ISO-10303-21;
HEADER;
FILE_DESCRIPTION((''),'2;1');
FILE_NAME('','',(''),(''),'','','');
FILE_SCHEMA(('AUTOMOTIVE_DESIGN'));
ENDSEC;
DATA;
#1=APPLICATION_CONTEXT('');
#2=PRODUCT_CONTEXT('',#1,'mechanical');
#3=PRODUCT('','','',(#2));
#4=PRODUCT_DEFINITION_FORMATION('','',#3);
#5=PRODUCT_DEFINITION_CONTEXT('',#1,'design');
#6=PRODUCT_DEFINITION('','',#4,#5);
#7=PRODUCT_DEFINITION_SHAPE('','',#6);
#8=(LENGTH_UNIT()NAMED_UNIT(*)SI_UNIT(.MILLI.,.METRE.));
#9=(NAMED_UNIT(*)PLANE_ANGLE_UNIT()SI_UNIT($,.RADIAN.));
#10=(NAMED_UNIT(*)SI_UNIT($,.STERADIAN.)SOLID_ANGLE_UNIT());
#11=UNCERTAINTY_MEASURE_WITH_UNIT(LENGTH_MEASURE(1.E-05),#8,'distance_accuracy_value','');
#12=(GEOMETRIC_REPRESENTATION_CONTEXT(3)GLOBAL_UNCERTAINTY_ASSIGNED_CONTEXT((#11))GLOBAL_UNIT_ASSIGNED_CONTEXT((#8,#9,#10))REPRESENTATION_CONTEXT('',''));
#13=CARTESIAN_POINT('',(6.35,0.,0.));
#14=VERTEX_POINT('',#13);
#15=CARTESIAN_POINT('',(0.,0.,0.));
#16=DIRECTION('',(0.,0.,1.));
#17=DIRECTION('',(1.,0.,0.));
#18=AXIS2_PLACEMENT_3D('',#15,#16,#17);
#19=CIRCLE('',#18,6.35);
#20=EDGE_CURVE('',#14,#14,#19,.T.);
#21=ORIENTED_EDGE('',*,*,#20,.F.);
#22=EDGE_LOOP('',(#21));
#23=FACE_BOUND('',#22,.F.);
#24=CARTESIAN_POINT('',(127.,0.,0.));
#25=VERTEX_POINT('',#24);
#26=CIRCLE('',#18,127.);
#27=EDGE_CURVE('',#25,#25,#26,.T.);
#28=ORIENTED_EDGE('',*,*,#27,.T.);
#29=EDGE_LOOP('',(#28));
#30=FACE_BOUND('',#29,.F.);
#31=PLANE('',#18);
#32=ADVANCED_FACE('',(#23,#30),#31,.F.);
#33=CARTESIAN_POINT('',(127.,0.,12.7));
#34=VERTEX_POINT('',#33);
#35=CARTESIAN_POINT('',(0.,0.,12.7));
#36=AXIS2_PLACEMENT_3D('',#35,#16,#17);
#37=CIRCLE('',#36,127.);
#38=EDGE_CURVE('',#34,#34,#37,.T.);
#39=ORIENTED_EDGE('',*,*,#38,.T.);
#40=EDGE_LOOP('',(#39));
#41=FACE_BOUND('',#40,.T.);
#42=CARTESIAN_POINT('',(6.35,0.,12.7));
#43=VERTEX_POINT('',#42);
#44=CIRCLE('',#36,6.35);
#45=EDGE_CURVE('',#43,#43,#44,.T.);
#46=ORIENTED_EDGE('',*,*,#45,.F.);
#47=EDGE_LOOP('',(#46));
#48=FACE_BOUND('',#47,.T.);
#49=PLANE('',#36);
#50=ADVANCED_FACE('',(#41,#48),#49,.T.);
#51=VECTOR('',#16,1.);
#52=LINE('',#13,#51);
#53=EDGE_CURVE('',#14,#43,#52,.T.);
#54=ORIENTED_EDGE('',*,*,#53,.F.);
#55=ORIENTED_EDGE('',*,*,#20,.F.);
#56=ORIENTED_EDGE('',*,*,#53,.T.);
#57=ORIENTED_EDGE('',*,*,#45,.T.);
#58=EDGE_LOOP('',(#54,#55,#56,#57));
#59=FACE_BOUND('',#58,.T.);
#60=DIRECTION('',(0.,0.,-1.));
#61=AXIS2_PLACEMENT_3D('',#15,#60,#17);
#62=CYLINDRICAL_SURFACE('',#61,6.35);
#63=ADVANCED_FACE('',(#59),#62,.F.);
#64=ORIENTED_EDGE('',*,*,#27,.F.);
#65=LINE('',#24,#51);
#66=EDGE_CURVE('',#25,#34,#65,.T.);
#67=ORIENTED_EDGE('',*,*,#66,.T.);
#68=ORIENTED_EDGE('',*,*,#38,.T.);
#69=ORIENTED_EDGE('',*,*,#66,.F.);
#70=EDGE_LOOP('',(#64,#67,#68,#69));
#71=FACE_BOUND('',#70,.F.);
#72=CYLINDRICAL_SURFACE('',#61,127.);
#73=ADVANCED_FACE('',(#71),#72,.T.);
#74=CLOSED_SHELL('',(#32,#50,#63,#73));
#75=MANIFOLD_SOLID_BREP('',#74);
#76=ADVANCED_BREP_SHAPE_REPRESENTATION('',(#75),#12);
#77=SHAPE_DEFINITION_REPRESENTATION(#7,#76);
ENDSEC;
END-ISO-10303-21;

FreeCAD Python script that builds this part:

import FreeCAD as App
import Part
import Sketcher
Q = App.Units.Quantity

doc = App.newDocument("Part")
body = doc.addObject("PartDesign::Body", "Body")

# Sketch on XY plane
sketch1 = doc.addObject("Sketcher::SketchObject", "Sketch")
body.addObject(sketch1)
sketch1.AttachmentSupport = (doc.XY_Plane, [""])
sketch1.MapMode = "FlatFace"
sketch1.addGeometry([
    Part.Circle(App.Vector(0, 0, 0), App.Vector(0, 0, 1), 127),
    Part.Circle(App.Vector(0, 0, 0), App.Vector(0, 0, 1), 6),
], False)
sketch1.addConstraint([
    Sketcher.Constraint("Coincident", 0, 3, -1, 1),
    Sketcher.Constraint("Coincident", 1, 3, -1, 1),
    Sketcher.Constraint("Diameter", 0, Q("10 in")),
    Sketcher.Constraint("Diameter", 1, Q("0.5 in")),
])
pad1 = doc.addObject("PartDesign::Pad", "Pad")
body.addObject(pad1)
pad1.Profile = sketch1
pad1.Length = Q("0.5 in")

doc.recompute()
